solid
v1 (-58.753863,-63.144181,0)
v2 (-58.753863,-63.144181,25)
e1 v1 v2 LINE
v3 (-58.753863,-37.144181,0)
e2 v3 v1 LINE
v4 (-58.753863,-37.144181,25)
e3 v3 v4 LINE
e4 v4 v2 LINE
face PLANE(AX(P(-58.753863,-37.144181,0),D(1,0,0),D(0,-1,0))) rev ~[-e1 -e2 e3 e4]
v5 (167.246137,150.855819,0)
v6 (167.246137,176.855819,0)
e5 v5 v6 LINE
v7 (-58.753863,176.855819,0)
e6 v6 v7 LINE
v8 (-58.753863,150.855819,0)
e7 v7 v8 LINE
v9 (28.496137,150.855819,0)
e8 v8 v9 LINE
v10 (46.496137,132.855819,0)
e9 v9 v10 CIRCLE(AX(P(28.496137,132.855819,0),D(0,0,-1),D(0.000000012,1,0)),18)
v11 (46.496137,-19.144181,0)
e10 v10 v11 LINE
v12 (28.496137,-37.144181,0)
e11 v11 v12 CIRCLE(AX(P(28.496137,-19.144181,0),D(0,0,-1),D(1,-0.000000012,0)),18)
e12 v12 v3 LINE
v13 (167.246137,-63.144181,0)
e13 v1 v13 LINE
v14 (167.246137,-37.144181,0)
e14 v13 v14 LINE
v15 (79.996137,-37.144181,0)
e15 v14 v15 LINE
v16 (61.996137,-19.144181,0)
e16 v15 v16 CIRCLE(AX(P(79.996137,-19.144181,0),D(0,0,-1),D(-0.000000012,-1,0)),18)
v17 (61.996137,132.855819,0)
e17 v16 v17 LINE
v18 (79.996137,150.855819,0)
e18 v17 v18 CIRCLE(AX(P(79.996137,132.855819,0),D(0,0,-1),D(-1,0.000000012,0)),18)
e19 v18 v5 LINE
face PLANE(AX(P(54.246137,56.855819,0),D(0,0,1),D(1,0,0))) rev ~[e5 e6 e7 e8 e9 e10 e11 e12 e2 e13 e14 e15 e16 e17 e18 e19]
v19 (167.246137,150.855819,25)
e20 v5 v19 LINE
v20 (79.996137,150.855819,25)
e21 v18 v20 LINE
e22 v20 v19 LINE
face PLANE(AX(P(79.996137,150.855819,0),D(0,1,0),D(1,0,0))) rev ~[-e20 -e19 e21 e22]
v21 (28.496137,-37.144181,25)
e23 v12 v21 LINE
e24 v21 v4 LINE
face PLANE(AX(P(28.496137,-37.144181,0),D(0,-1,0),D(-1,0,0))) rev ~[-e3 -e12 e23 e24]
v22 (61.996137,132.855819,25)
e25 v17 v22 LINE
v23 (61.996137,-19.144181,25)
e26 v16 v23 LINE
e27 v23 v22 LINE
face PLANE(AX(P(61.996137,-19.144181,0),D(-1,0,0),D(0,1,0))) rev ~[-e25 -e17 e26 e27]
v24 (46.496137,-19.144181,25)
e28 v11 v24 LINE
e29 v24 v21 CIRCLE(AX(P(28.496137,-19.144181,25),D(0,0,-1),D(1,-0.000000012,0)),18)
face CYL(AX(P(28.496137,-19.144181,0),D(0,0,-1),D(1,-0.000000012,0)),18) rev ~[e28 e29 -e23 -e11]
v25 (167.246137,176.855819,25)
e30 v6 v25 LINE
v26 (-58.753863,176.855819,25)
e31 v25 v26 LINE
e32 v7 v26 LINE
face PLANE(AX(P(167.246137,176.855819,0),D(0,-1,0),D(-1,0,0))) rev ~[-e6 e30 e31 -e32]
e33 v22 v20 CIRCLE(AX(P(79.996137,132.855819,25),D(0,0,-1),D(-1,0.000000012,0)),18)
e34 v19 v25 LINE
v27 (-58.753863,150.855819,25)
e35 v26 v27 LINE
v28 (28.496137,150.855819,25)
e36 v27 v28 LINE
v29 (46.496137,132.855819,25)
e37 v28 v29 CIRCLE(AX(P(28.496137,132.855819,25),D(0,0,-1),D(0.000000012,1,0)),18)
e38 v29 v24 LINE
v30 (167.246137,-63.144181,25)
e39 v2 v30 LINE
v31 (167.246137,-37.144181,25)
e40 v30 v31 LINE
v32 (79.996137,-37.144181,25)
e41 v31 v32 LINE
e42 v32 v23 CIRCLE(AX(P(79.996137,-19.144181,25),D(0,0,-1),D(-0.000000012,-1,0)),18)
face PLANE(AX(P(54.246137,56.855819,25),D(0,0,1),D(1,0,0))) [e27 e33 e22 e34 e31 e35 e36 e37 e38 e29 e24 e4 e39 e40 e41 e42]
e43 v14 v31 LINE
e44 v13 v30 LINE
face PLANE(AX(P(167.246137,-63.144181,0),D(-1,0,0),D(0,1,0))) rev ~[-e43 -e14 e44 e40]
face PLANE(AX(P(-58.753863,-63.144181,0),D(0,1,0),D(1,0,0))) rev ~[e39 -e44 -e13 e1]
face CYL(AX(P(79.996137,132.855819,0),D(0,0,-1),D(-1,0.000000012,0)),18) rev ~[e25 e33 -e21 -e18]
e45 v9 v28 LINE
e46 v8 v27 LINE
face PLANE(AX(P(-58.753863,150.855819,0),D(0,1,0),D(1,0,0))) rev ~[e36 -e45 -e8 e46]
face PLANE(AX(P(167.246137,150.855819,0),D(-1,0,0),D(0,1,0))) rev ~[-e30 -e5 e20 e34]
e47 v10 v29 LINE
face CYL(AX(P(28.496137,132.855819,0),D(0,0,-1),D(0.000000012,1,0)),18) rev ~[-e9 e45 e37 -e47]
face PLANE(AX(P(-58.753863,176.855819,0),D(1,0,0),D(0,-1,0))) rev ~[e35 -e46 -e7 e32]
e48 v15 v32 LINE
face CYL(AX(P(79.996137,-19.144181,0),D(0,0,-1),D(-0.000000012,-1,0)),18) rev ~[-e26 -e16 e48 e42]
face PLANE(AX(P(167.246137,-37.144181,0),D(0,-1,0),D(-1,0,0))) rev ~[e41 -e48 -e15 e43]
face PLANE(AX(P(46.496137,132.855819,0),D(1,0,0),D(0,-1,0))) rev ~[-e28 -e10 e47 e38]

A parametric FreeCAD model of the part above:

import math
import FreeCAD as App
import Part
import Sketcher

V = App.Vector

doc = App.newDocument("Part")
params = doc.addObject("Spreadsheet::Sheet", "Params")
for row, (alias, value) in enumerate([
    ("sketch1_radius", "18 mm"),
    ("sketch1_width", "226 mm"),
    ("sketch1_height", "26 mm"),
    ("sketch1_height2", "152 mm"),
    ("sketch1_width2", "87.25 mm"),
    ("pad1_length", "25 mm"),
], start=1):
    params.set(f"A{row}", alias)
    params.set(f"B{row}", "=" + value)
    params.setAlias(f"B{row}", alias)

body = doc.addObject("PartDesign::Body", "Body")

sketch1 = body.newObject("Sketcher::SketchObject", "Sketch")
sketch1.AttachmentSupport = (doc.getObject("XY_Plane"), [""])
sketch1.MapMode = "FlatFace"
sketch1.addGeometry([
    Part.LineSegment(V(167, 177, 0), V(-59, 177, 0)),
    Part.LineSegment(V(-59, 177, 0), V(-59, 151, 0)),
    Part.LineSegment(V(-59, 151, 0), V(28, 151, 0)),
    Part.ArcOfCircle(Part.Circle(V(28, 133, 0), V(0, 0, 1), 18), math.radians(0), math.radians(90)),
    Part.LineSegment(V(46, 133, 0), V(46, -19, 0)),
    Part.ArcOfCircle(Part.Circle(V(28, -19, 0), V(0, 0, 1), 18), math.radians(-90), math.radians(0)),
    Part.LineSegment(V(28, -37, 0), V(-59, -37, 0)),
    Part.LineSegment(V(-59, -37, 0), V(-59, -63, 0)),
    Part.LineSegment(V(-59, -63, 0), V(167, -63, 0)),
    Part.LineSegment(V(167, -63, 0), V(167, -37, 0)),
    Part.LineSegment(V(167, -37, 0), V(80, -37, 0)),
    Part.ArcOfCircle(Part.Circle(V(80, -19, 0), V(0, 0, 1), 18), math.radians(-180), math.radians(-90)),
    Part.LineSegment(V(62, -19, 0), V(62, 133, 0)),
    Part.ArcOfCircle(Part.Circle(V(80, 133, 0), V(0, 0, 1), 18), math.radians(90), math.radians(180)),
    Part.LineSegment(V(80, 151, 0), V(167, 151, 0)),
    Part.LineSegment(V(167, 151, 0), V(167, 177, 0)),
], False)
sketch1.addConstraint([
    Sketcher.Constraint("Coincident", 0, 2, 1, 1),
    Sketcher.Constraint("Coincident", 1, 2, 2, 1),
    Sketcher.Constraint("Tangent", 2, 2, 3, 2),
    Sketcher.Constraint("Tangent", 3, 1, 4, 1),
    Sketcher.Constraint("Tangent", 4, 2, 5, 2),
    Sketcher.Constraint("Tangent", 5, 1, 6, 1),
    Sketcher.Constraint("Coincident", 6, 2, 7, 1),
    Sketcher.Constraint("Coincident", 7, 2, 8, 1),
    Sketcher.Constraint("Coincident", 8, 2, 9, 1),
    Sketcher.Constraint("Coincident", 9, 2, 10, 1),
    Sketcher.Constraint("Tangent", 10, 2, 11, 2),
    Sketcher.Constraint("Tangent", 11, 1, 12, 1),
    Sketcher.Constraint("Tangent", 12, 2, 13, 2),
    Sketcher.Constraint("Tangent", 13, 1, 14, 1),
    Sketcher.Constraint("Coincident", 14, 2, 15, 1),
    Sketcher.Constraint("Coincident", 15, 2, 0, 1),
    Sketcher.Constraint("Horizontal", 0),
    Sketcher.Constraint("Vertical", 1),
    Sketcher.Constraint("Horizontal", 2),
    Sketcher.Constraint("Vertical", 4),
    Sketcher.Constraint("Horizontal", 6),
    Sketcher.Constraint("Vertical", 7),
    Sketcher.Constraint("Horizontal", 8),
    Sketcher.Constraint("Vertical", 9),
    Sketcher.Constraint("Horizontal", 10),
    Sketcher.Constraint("Vertical", 12),
    Sketcher.Constraint("Horizontal", 14),
    Sketcher.Constraint("Vertical", 15),
    Sketcher.Constraint("Equal", 3, 5),
    Sketcher.Constraint("Equal", 5, 11),
    Sketcher.Constraint("Equal", 11, 13),
    Sketcher.Constraint("Horizontal", 5, 3, 11, 3),
    Sketcher.Constraint("Horizontal", 3, 3, 13, 3),
    Sketcher.Constraint("Vertical", 1, 2, 6, 2),
    Sketcher.Constraint("Vertical", 9, 2, 14, 2),
    Sketcher.Constraint("Equal", 6, 10),
    Sketcher.Constraint("Equal", 1, 7),
    Sketcher.Constraint("Radius", 3, 18.0),
    Sketcher.Constraint("DistanceX", 0, 2, 0, 1, 226.0),
    Sketcher.Constraint("DistanceY", 1, 2, 1, 1, 26.0),
    Sketcher.Constraint("DistanceY", 4, 2, 4, 1, 152.0),
    Sketcher.Constraint("DistanceX", 2, 1, 2, 2, 87.25),
    Sketcher.Constraint("DistanceY", -1, 1, 3, 3, 132.855819),
    Sketcher.Constraint("DistanceX", -1, 1, 3, 3, 28.496137),
])
sketch1.setExpression("Constraints[37]", "Params.sketch1_radius")
sketch1.setExpression("Constraints[38]", "Params.sketch1_width")
sketch1.setExpression("Constraints[39]", "Params.sketch1_height")
sketch1.setExpression("Constraints[40]", "Params.sketch1_height2")
sketch1.setExpression("Constraints[41]", "Params.sketch1_width2")
pad1 = body.newObject("PartDesign::Pad", "Pad")
pad1.Profile = sketch1
pad1.setExpression("Length", "Params.pad1_length")

doc.recompute()
